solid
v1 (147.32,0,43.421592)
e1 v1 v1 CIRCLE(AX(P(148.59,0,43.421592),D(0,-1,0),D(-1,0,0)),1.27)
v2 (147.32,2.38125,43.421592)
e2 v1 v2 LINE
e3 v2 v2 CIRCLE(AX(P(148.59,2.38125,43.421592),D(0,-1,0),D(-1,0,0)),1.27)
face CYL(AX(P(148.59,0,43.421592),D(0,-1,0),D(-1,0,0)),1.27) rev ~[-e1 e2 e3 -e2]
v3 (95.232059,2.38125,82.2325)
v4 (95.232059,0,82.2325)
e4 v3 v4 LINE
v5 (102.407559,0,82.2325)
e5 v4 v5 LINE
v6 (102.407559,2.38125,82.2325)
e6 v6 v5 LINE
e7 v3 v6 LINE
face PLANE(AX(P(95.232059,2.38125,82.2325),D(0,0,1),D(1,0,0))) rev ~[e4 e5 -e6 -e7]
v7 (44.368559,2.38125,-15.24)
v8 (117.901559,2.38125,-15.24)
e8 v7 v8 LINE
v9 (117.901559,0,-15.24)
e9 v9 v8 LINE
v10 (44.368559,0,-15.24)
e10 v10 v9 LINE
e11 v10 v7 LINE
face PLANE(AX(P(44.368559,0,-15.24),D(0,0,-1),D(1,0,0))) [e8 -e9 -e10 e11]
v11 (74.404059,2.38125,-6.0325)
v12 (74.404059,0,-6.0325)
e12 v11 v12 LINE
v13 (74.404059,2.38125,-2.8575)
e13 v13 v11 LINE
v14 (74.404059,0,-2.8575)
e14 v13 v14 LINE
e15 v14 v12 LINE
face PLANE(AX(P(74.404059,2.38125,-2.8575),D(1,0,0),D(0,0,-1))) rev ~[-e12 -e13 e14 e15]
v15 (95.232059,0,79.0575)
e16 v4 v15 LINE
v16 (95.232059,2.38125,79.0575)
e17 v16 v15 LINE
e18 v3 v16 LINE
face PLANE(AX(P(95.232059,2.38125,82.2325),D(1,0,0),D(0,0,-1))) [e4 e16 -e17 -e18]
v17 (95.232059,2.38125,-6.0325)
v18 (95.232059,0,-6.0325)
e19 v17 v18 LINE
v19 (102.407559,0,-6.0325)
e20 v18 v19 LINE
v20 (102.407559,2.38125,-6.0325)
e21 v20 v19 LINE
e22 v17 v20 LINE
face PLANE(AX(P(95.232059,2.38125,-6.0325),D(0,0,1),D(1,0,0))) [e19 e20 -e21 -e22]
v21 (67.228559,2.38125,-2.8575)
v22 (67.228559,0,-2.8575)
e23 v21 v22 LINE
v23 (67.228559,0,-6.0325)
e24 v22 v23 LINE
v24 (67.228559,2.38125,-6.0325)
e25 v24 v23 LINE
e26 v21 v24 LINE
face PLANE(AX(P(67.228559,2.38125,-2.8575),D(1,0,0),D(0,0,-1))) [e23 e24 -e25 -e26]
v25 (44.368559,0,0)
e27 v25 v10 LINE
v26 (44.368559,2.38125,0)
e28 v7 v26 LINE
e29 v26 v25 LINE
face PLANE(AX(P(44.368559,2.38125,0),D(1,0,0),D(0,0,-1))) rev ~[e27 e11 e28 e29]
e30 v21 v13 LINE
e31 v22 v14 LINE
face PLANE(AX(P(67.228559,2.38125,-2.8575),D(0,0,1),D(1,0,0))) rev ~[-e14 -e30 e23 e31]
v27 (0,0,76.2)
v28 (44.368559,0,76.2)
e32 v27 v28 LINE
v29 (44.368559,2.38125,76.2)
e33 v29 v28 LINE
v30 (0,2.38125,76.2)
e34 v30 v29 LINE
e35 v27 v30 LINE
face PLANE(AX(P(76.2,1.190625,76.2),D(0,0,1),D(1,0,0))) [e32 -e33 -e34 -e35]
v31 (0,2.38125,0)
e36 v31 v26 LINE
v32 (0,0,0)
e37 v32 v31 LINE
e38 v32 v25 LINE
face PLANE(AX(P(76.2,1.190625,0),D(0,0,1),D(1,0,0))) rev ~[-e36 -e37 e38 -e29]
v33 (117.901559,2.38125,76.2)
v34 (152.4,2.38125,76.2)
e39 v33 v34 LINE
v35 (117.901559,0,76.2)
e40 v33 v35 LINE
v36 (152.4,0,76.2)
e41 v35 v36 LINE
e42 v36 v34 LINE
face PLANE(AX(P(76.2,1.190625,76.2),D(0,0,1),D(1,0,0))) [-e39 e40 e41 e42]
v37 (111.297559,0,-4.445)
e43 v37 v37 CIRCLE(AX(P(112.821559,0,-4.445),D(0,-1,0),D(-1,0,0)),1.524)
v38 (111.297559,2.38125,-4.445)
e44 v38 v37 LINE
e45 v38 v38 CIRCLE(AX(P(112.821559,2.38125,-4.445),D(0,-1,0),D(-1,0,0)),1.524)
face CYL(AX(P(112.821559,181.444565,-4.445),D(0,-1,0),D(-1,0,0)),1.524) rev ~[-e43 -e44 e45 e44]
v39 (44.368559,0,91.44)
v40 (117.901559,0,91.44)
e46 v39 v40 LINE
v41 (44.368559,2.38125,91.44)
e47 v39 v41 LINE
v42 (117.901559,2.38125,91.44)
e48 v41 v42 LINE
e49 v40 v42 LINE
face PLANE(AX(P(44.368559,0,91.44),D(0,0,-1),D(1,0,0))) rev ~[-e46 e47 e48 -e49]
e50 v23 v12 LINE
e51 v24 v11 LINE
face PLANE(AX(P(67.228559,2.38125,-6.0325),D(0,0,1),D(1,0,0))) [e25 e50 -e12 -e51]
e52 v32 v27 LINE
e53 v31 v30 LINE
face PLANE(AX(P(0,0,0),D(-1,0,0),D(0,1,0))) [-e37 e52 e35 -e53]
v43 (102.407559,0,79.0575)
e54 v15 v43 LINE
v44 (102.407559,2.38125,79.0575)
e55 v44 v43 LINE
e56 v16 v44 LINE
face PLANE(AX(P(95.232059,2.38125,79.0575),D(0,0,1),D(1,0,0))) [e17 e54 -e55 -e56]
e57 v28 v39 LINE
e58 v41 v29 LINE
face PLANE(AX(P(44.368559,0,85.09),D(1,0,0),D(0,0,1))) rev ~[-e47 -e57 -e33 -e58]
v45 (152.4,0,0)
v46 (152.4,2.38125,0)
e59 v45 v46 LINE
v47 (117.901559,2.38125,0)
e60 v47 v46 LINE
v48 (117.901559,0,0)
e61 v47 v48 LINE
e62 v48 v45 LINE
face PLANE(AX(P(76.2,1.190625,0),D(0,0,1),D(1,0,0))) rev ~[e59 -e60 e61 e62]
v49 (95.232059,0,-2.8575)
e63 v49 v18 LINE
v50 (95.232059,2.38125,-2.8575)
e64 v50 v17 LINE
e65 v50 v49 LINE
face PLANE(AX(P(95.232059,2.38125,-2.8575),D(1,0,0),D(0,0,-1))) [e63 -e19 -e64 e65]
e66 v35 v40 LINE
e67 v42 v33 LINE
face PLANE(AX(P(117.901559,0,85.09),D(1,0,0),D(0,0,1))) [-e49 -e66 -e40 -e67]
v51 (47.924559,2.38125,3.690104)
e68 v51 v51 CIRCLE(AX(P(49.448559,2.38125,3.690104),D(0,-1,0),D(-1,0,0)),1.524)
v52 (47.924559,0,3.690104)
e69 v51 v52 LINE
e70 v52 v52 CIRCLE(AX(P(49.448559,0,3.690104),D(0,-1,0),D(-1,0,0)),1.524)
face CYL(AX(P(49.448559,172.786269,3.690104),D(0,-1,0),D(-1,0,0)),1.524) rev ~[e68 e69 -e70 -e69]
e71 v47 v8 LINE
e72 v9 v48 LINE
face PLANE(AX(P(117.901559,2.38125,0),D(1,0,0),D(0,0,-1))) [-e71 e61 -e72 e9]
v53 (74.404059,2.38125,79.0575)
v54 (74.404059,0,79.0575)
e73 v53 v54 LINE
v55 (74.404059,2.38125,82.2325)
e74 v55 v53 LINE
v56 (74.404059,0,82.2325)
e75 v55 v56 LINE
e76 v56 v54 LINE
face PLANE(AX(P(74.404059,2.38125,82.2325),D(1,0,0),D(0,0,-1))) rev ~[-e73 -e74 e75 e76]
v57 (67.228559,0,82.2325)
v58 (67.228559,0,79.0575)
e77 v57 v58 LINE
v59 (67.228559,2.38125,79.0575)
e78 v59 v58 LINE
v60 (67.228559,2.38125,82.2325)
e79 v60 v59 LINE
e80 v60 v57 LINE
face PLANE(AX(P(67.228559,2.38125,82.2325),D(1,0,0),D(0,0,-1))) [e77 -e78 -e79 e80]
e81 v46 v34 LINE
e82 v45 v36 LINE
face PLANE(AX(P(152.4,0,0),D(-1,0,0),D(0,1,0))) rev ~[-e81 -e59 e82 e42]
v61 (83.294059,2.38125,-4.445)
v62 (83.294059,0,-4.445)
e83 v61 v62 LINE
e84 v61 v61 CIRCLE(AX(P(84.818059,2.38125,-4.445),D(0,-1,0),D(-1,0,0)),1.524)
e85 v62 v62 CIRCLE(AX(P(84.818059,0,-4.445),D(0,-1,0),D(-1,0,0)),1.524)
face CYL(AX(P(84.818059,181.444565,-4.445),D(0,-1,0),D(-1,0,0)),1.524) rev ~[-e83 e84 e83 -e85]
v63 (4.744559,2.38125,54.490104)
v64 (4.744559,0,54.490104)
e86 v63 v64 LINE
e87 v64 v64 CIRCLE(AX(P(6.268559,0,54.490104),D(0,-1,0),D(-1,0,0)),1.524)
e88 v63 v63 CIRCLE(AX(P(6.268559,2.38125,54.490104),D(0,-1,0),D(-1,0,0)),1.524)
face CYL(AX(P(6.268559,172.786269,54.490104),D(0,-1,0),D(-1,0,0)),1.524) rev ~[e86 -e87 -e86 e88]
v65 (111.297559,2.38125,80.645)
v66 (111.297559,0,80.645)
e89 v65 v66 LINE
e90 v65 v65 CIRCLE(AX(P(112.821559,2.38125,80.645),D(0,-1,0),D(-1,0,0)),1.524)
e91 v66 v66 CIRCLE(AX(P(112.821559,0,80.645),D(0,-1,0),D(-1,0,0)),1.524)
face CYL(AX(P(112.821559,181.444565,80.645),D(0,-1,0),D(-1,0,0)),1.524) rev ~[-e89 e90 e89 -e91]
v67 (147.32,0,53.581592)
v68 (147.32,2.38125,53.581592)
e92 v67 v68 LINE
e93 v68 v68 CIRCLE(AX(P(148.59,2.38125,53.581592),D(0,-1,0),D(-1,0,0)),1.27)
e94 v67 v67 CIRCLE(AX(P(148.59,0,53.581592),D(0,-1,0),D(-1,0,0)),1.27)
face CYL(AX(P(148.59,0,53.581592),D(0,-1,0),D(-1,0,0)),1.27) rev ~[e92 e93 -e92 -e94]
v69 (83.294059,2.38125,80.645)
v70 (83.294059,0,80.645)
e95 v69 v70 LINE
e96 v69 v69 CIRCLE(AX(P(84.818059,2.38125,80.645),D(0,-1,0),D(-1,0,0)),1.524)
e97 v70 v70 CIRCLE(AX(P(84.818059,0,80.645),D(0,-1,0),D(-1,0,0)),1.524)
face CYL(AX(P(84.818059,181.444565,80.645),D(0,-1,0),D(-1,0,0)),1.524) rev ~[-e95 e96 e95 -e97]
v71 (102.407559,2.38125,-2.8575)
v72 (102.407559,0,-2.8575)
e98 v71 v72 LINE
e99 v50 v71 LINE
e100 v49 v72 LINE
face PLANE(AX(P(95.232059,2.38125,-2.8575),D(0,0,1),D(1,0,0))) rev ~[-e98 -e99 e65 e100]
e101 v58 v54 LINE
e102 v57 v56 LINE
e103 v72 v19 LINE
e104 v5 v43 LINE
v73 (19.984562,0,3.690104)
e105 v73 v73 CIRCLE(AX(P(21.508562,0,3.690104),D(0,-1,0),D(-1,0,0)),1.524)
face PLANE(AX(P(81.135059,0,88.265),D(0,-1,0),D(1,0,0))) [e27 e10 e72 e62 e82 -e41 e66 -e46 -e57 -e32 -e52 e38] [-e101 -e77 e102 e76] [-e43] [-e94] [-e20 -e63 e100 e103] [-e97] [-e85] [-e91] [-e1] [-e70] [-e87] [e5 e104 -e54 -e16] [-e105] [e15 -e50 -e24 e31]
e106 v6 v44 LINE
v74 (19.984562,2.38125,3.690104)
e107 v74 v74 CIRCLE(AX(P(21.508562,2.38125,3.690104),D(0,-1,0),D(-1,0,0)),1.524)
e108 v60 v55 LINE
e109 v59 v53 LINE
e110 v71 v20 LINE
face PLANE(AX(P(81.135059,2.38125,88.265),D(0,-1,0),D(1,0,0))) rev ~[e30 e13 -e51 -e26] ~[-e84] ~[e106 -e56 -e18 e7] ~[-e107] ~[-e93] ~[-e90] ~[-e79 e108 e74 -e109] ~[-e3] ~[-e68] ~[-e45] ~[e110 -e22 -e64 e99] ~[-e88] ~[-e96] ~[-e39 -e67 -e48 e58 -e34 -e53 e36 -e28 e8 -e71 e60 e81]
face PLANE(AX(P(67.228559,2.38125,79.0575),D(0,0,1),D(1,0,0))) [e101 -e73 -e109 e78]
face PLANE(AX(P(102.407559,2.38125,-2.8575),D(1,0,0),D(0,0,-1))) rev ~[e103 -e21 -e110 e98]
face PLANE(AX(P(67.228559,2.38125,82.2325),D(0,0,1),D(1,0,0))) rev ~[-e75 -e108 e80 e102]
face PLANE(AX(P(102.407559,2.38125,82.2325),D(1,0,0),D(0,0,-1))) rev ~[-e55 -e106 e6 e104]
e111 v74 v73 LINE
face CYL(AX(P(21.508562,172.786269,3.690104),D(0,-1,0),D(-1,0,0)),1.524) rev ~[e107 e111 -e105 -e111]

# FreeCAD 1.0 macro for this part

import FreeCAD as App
import Part
import Sketcher
Q = App.Units.Quantity

doc = App.newDocument("Part")
params = doc.addObject("Spreadsheet::Sheet", "Params")
for row, (alias, value) in enumerate([
    ("sketch1_width", "6 in"),
    ("sketch1_height", "0.09375 in"),
    ("pad1_length", "3 in"),
    ("sketch2_diameter", "0.12 in"),
    ("hole_diameter", "0.12 in"),
    ("sketch3_height", "0.35 in"),
    ("sketch3_width", "2.895 in"),
    ("pad2_length", "0.09375 in"),
    ("sketch4_height", "0.125 in"),
    ("sketch5_diameter", "0.12 in"),
    ("hole2_diameter", "0.12 in"),
    ("sketch6_height", "0.25 in"),
    ("sketch6_width", "2.895 in"),
    ("pad3_length", "0.09375 in"),
    ("sketch7_diameter", "0.1 in"),
], start=1):
    params.set(f"A{row}", alias)
    params.set(f"B{row}", "=" + value)
    params.setAlias(f"B{row}", alias)

body = doc.addObject("PartDesign::Body", "Body")

# Sketch on XY plane
sketch1 = body.newObject("Sketcher::SketchObject", "Sketch")
sketch1.AttachmentSupport = (doc.getObject("XY_Plane"), [""])
sketch1.MapMode = "FlatFace"
sketch1.addGeometry([
    Part.LineSegment(App.Vector(0, 2.4, 0), App.Vector(0, 0, 0)),
    Part.LineSegment(App.Vector(0, 0, 0), App.Vector(152.4, 0, 0)),
    Part.LineSegment(App.Vector(152.4, 0, 0), App.Vector(152.4, 2.4, 0)),
    Part.LineSegment(App.Vector(152.4, 2.4, 0), App.Vector(0, 2.4, 0)),
], False)
sketch1.addConstraint([
    Sketcher.Constraint("Coincident", 0, 2, 1, 1),
    Sketcher.Constraint("Coincident", 1, 2, 2, 1),
    Sketcher.Constraint("Coincident", 2, 2, 3, 1),
    Sketcher.Constraint("Coincident", 3, 2, 0, 1),
    Sketcher.Constraint("Vertical", 0),
    Sketcher.Constraint("Horizontal", 1),
    Sketcher.Constraint("Vertical", 2),
    Sketcher.Constraint("Horizontal", 3),
    Sketcher.Constraint("Coincident", 0, 2, -1, 1),
    Sketcher.Constraint("DistanceX", 1, 1, 1, 2, Q("6 in")),
    Sketcher.Constraint("DistanceY", 0, 2, 0, 1, Q("0.09375 in")),
])
sketch1.setExpression("Constraints[9]", "Params.sketch1_width")
sketch1.setExpression("Constraints[10]", "Params.sketch1_height")
pad1 = body.newObject("PartDesign::Pad", "Pad")
pad1.Profile = sketch1
pad1.setExpression("Length", "Params.pad1_length")

# Sketch on XZ plane
sketch2 = body.newObject("Sketcher::SketchObject", "Sketch001")
sketch2.AttachmentSupport = (doc.getObject("XZ_Plane"), [""])
sketch2.MapMode = "FlatFace"
sketch2.AttachmentOffset = App.Placement(App.Vector(0, 0, -0.09375 * 25.4), App.Rotation())
sketch2.addGeometry([
    Part.Circle(App.Vector(49.4, 3.7, 0), App.Vector(0, 0, 1), 1.5),
    Part.Circle(App.Vector(21.5, 3.7, 0), App.Vector(0, 0, 1), 1.5),
    Part.Circle(App.Vector(6.3, 54.5, 0), App.Vector(0, 0, 1), 1.5),
], False)
sketch2.addConstraint([
    Sketcher.Constraint("Equal", 0, 1),
    Sketcher.Constraint("Equal", 1, 2),
    Sketcher.Constraint("Horizontal", 0, 3, 1, 3),
    Sketcher.Constraint("Diameter", 0, Q("0.12 in")),
    Sketcher.Constraint("DistanceY", 1, 3, 2, 3, Q("2 in")),
    Sketcher.Constraint("DistanceX", 1, 3, 0, 3, Q("1.0999999 in")),
    Sketcher.Constraint("DistanceX", 2, 3, 1, 3, Q("0.6000001 in")),
    Sketcher.Constraint("DistanceX", -1, 1, 0, 3, 49.448559),
    Sketcher.Constraint("DistanceY", -1, 1, 0, 3, 3.690104),
])
sketch2.setExpression("Constraints[3]", "Params.sketch2_diameter")
doc.recompute()
hole = body.newObject("PartDesign::Hole", "Hole")
hole.Profile = sketch2
hole.ThreadType = "None"
hole.setExpression("Diameter", "Params.hole_diameter")
hole.DepthType = "ThroughAll"
hole.Reversed = True

# Sketch on XZ plane
sketch3 = body.newObject("Sketcher::SketchObject", "Sketch002")
sketch3.AttachmentSupport = (doc.getObject("XZ_Plane"), [""])
sketch3.MapMode = "FlatFace"
sketch3.AttachmentOffset = App.Placement(App.Vector(0, 0, -0.09375 * 25.4), App.Rotation())
sketch3.addGeometry([
    Part.LineSegment(App.Vector(44, -9, 0), App.Vector(44, 0, 0)),  # 0
    Part.LineSegment(App.Vector(44, 0, 0), App.Vector(118, 0, 0)),  # 1
    Part.LineSegment(App.Vector(118, 0, 0), App.Vector(118, -9, 0)),  # 2
    Part.LineSegment(App.Vector(118, -9, 0), App.Vector(44, -9, 0)),  # 3
    Part.LineSegment(App.Vector(44, 76, 0), App.Vector(44, 85, 0)),  # 4
    Part.LineSegment(App.Vector(44, 85, 0), App.Vector(118, 85, 0)),  # 5
    Part.LineSegment(App.Vector(118, 85, 0), App.Vector(118, 76, 0)),  # 6
    Part.LineSegment(App.Vector(118, 76, 0), App.Vector(44, 76, 0)),  # 7
], False)
sketch3.addConstraint([
    Sketcher.Constraint("Coincident", 0, 2, 1, 1),
    Sketcher.Constraint("Coincident", 1, 2, 2, 1),
    Sketcher.Constraint("Coincident", 2, 2, 3, 1),
    Sketcher.Constraint("Coincident", 3, 2, 0, 1),
    Sketcher.Constraint("Coincident", 4, 2, 5, 1),
    Sketcher.Constraint("Coincident", 5, 2, 6, 1),
    Sketcher.Constraint("Coincident", 6, 2, 7, 1),
    Sketcher.Constraint("Coincident", 7, 2, 4, 1),
    Sketcher.Constraint("Vertical", 0),
    Sketcher.Constraint("Horizontal", 1),
    Sketcher.Constraint("Vertical", 2),
    Sketcher.Constraint("Horizontal", 3),
    Sketcher.Constraint("Vertical", 4),
    Sketcher.Constraint("Horizontal", 5),
    Sketcher.Constraint("Vertical", 6),
    Sketcher.Constraint("Horizontal", 7),
    Sketcher.Constraint("PointOnObject", 0, 2, -1),
    Sketcher.Constraint("Vertical", 3, 2, 4, 2),
    Sketcher.Constraint("Vertical", 2, 2, 5, 2),
    Sketcher.Constraint("Equal", 2, 4),
    Sketcher.Constraint("DistanceY", -1, 1, 6, 2, Q("3 in")),
    Sketcher.Constraint("DistanceY", 0, 1, 0, 2, Q("0.35 in")),
    Sketcher.Constraint("DistanceX", 1, 1, 1, 2, Q("2.895 in")),
    Sketcher.Constraint("DistanceX", -1, 1, 0, 2, 44.368559),
])
sketch3.setExpression("Constraints[21]", "Params.sketch3_height")
sketch3.setExpression("Constraints[22]", "Params.sketch3_width")
pad2 = body.newObject("PartDesign::Pad", "Pad001")
pad2.Profile = sketch3
pad2.setExpression("Length", "Params.pad2_length")

# Sketch on XZ plane
sketch4 = body.newObject("Sketcher::SketchObject", "Sketch003")
sketch4.AttachmentSupport = (doc.getObject("XZ_Plane"), [""])
sketch4.MapMode = "FlatFace"
sketch4.AttachmentOffset = App.Placement(App.Vector(0, 0, -0.09375 * 25.4), App.Rotation())
sketch4.addGeometry([
    Part.LineSegment(App.Vector(67.2, -6, 0), App.Vector(67.2, -2.9, 0)),  # 0
    Part.LineSegment(App.Vector(67.2, -2.9, 0), App.Vector(74.4, -2.9, 0)),  # 1
    Part.LineSegment(App.Vector(74.4, -2.9, 0), App.Vector(74.4, -6, 0)),  # 2
    Part.LineSegment(App.Vector(74.4, -6, 0), App.Vector(67.2, -6, 0)),  # 3
    Part.LineSegment(App.Vector(95.2, -6, 0), App.Vector(95.2, -2.9, 0)),  # 4
    Part.LineSegment(App.Vector(95.2, -2.9, 0), App.Vector(102.4, -2.9, 0)),  # 5
    Part.LineSegment(App.Vector(102.4, -2.9, 0), App.Vector(102.4, -6, 0)),  # 6
    Part.LineSegment(App.Vector(102.4, -6, 0), App.Vector(95.2, -6, 0)),  # 7
    Part.LineSegment(App.Vector(95.2, 79.1, 0), App.Vector(95.2, 82.2, 0)),  # 8
    Part.LineSegment(App.Vector(95.2, 82.2, 0), App.Vector(102.4, 82.2, 0)),  # 9
    Part.LineSegment(App.Vector(102.4, 82.2, 0), App.Vector(102.4, 79.1, 0)),  # 10
    Part.LineSegment(App.Vector(102.4, 79.1, 0), App.Vector(95.2, 79.1, 0)),  # 11
    Part.LineSegment(App.Vector(67.2, 79.1, 0), App.Vector(67.2, 82.2, 0)),  # 12
    Part.LineSegment(App.Vector(67.2, 82.2, 0), App.Vector(74.4, 82.2, 0)),  # 13
    Part.LineSegment(App.Vector(74.4, 82.2, 0), App.Vector(74.4, 79.1, 0)),  # 14
    Part.LineSegment(App.Vector(74.4, 79.1, 0), App.Vector(67.2, 79.1, 0)),  # 15
], False)
sketch4.addConstraint([
    Sketcher.Constraint("Coincident", 0, 2, 1, 1),
    Sketcher.Constraint("Coincident", 1, 2, 2, 1),
    Sketcher.Constraint("Coincident", 2, 2, 3, 1),
    Sketcher.Constraint("Coincident", 3, 2, 0, 1),
    Sketcher.Constraint("Coincident", 4, 2, 5, 1),
    Sketcher.Constraint("Coincident", 5, 2, 6, 1),
    Sketcher.Constraint("Coincident", 6, 2, 7, 1),
    Sketcher.Constraint("Coincident", 7, 2, 4, 1),
    Sketcher.Constraint("Coincident", 8, 2, 9, 1),
    Sketcher.Constraint("Coincident", 9, 2, 10, 1),
    Sketcher.Constraint("Coincident", 10, 2, 11, 1),
    Sketcher.Constraint("Coincident", 11, 2, 8, 1),
    Sketcher.Constraint("Coincident", 12, 2, 13, 1),
    Sketcher.Constraint("Coincident", 13, 2, 14, 1),
    Sketcher.Constraint("Coincident", 14, 2, 15, 1),
    Sketcher.Constraint("Coincident", 15, 2, 12, 1),
    Sketcher.Constraint("Vertical", 0),
    Sketcher.Constraint("Horizontal", 1),
    Sketcher.Constraint("Vertical", 2),
    Sketcher.Constraint("Horizontal", 3),
    Sketcher.Constraint("Vertical", 4),
    Sketcher.Constraint("Horizontal", 5),
    Sketcher.Constraint("Vertical", 6),
    Sketcher.Constraint("Horizontal", 7),
    Sketcher.Constraint("Vertical", 8),
    Sketcher.Constraint("Horizontal", 9),
    Sketcher.Constraint("Vertical", 10),
    Sketcher.Constraint("Horizontal", 11),
    Sketcher.Constraint("Vertical", 12),
    Sketcher.Constraint("Horizontal", 13),
    Sketcher.Constraint("Vertical", 14),
    Sketcher.Constraint("Horizontal", 15),
    Sketcher.Constraint("Horizontal", 1, 2, 4, 2),
    Sketcher.Constraint("Horizontal", 3, 2, 6, 2),
    Sketcher.Constraint("Horizontal", 9, 2, 12, 2),
    Sketcher.Constraint("Horizontal", 11, 2, 14, 2),
    Sketcher.Constraint("Vertical", 7, 2, 8, 2),
    Sketcher.Constraint("Vertical", 6, 2, 9, 2),
    Sketcher.Constraint("Vertical", 3, 2, 12, 2),
    Sketcher.Constraint("Vertical", 2, 2, 13, 2),
    Sketcher.Constraint("Equal", 3, 5),
    Sketcher.Constraint("Equal", 6, 8),
    Sketcher.Constraint("DistanceY", 0, 1, 0, 2, Q("0.125 in")),
    Sketcher.Constraint("DistanceX", 1, 2, 4, 2, Q("0.82 in")),
    Sketcher.Constraint("DistanceY", 4, 2, 8, 2, Q("3.35 in")),
    Sketcher.Constraint("DistanceX", 1, 1, 1, 2, Q("0.2825 in")),
    Sketcher.Constraint("DistanceY", 0, 2, -1, 1, Q("0.1125 in")),
    Sketcher.Constraint("DistanceX", -1, 1, 0, 2, 67.228559),
])
sketch4.setExpression("Constraints[42]", "Params.sketch4_height")
pocket1 = body.newObject("PartDesign::Pocket", "Pocket")
pocket1.Profile = sketch4
pocket1.Type = "ThroughAll"
pocket1.Reversed = True

# Sketch on XZ plane
sketch5 = body.newObject("Sketcher::SketchObject", "Sketch004")
sketch5.AttachmentSupport = (doc.getObject("XZ_Plane"), [""])
sketch5.MapMode = "FlatFace"
sketch5.AttachmentOffset = App.Placement(App.Vector(0, 0, -0.09375 * 25.4), App.Rotation())
sketch5.addGeometry([
    Part.Circle(App.Vector(84.8, -4.4, 0), App.Vector(0, 0, 1), 1.5),
    Part.Circle(App.Vector(112.8, -4.4, 0), App.Vector(0, 0, 1), 1.5),
    Part.Circle(App.Vector(112.8, 80.6, 0), App.Vector(0, 0, 1), 1.5),
    Part.Circle(App.Vector(84.8, 80.6, 0), App.Vector(0, 0, 1), 1.5),
], False)
sketch5.addConstraint([
    Sketcher.Constraint("Equal", 0, 1),
    Sketcher.Constraint("Equal", 1, 2),
    Sketcher.Constraint("Equal", 2, 3),
    Sketcher.Constraint("Horizontal", 0, 3, 1, 3),
    Sketcher.Constraint("Horizontal", 2, 3, 3, 3),
    Sketcher.Constraint("Vertical", 1, 3, 2, 3),
    Sketcher.Constraint("Vertical", 0, 3, 3, 3),
    Sketcher.Constraint("Diameter", 0, Q("0.12 in")),
    Sketcher.Constraint("DistanceY", 1, 3, 2, 3, Q("3.35 in")),
    Sketcher.Constraint("DistanceY", 0, 3, -1, 1, Q("0.175 in")),
    Sketcher.Constraint("DistanceX", 0, 3, 1, 3, Q("1.1025 in")),
    Sketcher.Constraint("DistanceX", -1, 1, 0, 3, 84.818059),
])
sketch5.setExpression("Constraints[7]", "Params.sketch5_diameter")
doc.recompute()
hole2 = body.newObject("PartDesign::Hole", "Hole001")
hole2.Profile = sketch5
hole2.ThreadType = "None"
hole2.setExpression("Diameter", "Params.hole2_diameter")
hole2.DepthType = "ThroughAll"
hole2.Reversed = True

# Sketch on XZ plane
sketch6 = body.newObject("Sketcher::SketchObject", "Sketch005")
sketch6.AttachmentSupport = (doc.getObject("XZ_Plane"), [""])
sketch6.MapMode = "FlatFace"
sketch6.addGeometry([
    Part.LineSegment(App.Vector(44, 91, 0), App.Vector(44, 85, 0)),  # 0
    Part.LineSegment(App.Vector(44, 85, 0), App.Vector(118, 85, 0)),  # 1
    Part.LineSegment(App.Vector(118, 85, 0), App.Vector(118, 91, 0)),  # 2
    Part.LineSegment(App.Vector(118, 91, 0), App.Vector(44, 91, 0)),  # 3
    Part.LineSegment(App.Vector(44, -9, 0), App.Vector(44, -15, 0)),  # 4
    Part.LineSegment(App.Vector(44, -15, 0), App.Vector(118, -15, 0)),  # 5
    Part.LineSegment(App.Vector(118, -15, 0), App.Vector(118, -9, 0)),  # 6
    Part.LineSegment(App.Vector(118, -9, 0), App.Vector(44, -9, 0)),  # 7
], False)
sketch6.addConstraint([
    Sketcher.Constraint("Coincident", 0, 2, 1, 1),
    Sketcher.Constraint("Coincident", 1, 2, 2, 1),
    Sketcher.Constraint("Coincident", 2, 2, 3, 1),
    Sketcher.Constraint("Coincident", 3, 2, 0, 1),
    Sketcher.Constraint("Coincident", 4, 2, 5, 1),
    Sketcher.Constraint("Coincident", 5, 2, 6, 1),
    Sketcher.Constraint("Coincident", 6, 2, 7, 1),
    Sketcher.Constraint("Coincident", 7, 2, 4, 1),
    Sketcher.Constraint("Vertical", 0),
    Sketcher.Constraint("Horizontal", 1),
    Sketcher.Constraint("Vertical", 2),
    Sketcher.Constraint("Horizontal", 3),
    Sketcher.Constraint("Vertical", 4),
    Sketcher.Constraint("Horizontal", 5),
    Sketcher.Constraint("Vertical", 6),
    Sketcher.Constraint("Horizontal", 7),
    Sketcher.Constraint("Vertical", 3, 2, 4, 2),
    Sketcher.Constraint("Vertical", 2, 2, 5, 2),
    Sketcher.Constraint("Equal", 2, 4),
    Sketcher.Constraint("DistanceY", 0, 2, 0, 1, Q("0.25 in")),
    Sketcher.Constraint("DistanceY", -1, 1, 2, 2, Q("3.6 in")),
    Sketcher.Constraint("DistanceY", 4, 2, -1, 1, Q("0.6 in")),
    Sketcher.Constraint("DistanceX", 1, 1, 1, 2, Q("2.895 in")),
    Sketcher.Constraint("DistanceX", -1, 1, 0, 2, 44.368559),
])
sketch6.setExpression("Constraints[19]", "Params.sketch6_height")
sketch6.setExpression("Constraints[22]", "Params.sketch6_width")
pad3 = body.newObject("PartDesign::Pad", "Pad002")
pad3.Profile = sketch6
pad3.setExpression("Length", "Params.pad3_length")
pad3.Reversed = True

# Sketch on XZ plane
sketch7 = body.newObject("Sketcher::SketchObject", "Sketch006")
sketch7.AttachmentSupport = (doc.getObject("XZ_Plane"), [""])
sketch7.MapMode = "FlatFace"
sketch7.addGeometry([
    Part.Circle(App.Vector(148.6, 43.4, 0), App.Vector(0, 0, 1), 1.3),
    Part.Circle(App.Vector(148.6, 53.6, 0), App.Vector(0, 0, 1), 1.3),
], False)
sketch7.addConstraint([
    Sketcher.Constraint("Equal", 0, 1),
    Sketcher.Constraint("Vertical", 0, 3, 1, 3),
    Sketcher.Constraint("Diameter", 0, Q("0.1 in")),
    Sketcher.Constraint("DistanceY", 0, 3, 1, 3, Q("0.4 in")),
    Sketcher.Constraint("DistanceX", -1, 1, 0, 3, Q("5.85 in")),
    Sketcher.Constraint("DistanceY", -1, 1, 0, 3, 43.421592),
])
sketch7.setExpression("Constraints[2]", "Params.sketch7_diameter")
pocket2 = body.newObject("PartDesign::Pocket", "Pocket001")
pocket2.Profile = sketch7
pocket2.Type = "ThroughAll"

doc.recompute()
